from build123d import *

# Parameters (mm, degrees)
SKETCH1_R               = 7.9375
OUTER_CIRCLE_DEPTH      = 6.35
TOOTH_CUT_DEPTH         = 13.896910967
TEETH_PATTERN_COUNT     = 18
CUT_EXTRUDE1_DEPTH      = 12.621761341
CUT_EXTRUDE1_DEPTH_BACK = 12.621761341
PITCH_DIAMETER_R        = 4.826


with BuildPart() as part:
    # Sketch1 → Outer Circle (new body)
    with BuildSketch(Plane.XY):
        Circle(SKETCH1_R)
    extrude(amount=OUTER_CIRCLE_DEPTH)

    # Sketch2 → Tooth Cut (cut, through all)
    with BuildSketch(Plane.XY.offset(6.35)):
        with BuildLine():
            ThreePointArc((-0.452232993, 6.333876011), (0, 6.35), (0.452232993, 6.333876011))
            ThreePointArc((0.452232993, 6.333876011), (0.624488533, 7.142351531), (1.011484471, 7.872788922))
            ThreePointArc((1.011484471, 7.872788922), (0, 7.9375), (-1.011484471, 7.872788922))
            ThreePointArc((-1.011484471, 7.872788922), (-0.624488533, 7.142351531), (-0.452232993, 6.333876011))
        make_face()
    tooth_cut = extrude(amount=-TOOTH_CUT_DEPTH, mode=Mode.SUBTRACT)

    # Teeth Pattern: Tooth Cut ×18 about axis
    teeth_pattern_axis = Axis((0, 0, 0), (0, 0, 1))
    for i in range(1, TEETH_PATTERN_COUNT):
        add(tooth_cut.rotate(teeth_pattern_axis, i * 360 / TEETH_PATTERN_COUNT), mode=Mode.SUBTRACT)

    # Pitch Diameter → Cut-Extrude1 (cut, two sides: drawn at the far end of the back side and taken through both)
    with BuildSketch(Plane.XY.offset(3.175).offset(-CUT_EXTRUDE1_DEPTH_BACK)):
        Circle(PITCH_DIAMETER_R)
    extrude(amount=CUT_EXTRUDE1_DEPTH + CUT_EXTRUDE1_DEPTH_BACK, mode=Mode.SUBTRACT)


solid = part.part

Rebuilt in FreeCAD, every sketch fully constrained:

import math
import FreeCAD as App
import Part
import Sketcher

V = App.Vector
Q = App.Units.Quantity

doc = App.newDocument("Part")
body = doc.addObject("PartDesign::Body", "Body")

sketch1 = doc.addObject("Sketcher::SketchObject", "Sketch")
body.addObject(sketch1)
sketch1.AttachmentSupport = (doc.XY_Plane, [""])
sketch1.MapMode = "FlatFace"
sketch1.addGeometry(Part.Circle(V(0, 0, 0), V(0, 0, 1), 8), False)
sketch1.addConstraint([
    Sketcher.Constraint("Coincident", 0, 3, -1, 1),
    Sketcher.Constraint("Diameter", 0, Q("0.625 in")),
])
pad1 = doc.addObject("PartDesign::Pad", "Pad")
body.addObject(pad1)
pad1.Profile = sketch1
pad1.Length = Q("0.25 in")

sketch2 = doc.addObject("Sketcher::SketchObject", "Sketch001")
body.addObject(sketch2)
sketch2.AttachmentSupport = (doc.XY_Plane, [""])
sketch2.MapMode = "FlatFace"
sketch2.AttachmentOffset = App.Placement(V(0, 0, 0.25 * 25.4), App.Rotation())
sketch2.addGeometry([
    Part.ArcOfCircle(Part.Circle(V(0, 0, 0), V(0, 0, 1), 6.4), math.radians(85.92), math.radians(94.08)),
    Part.ArcOfCircle(Part.Circle(V(3.4, 6.1, 0), V(0, 0, 1), 3), math.radians(144), math.radians(176)),
    Part.ArcOfCircle(Part.Circle(V(0, 0, 0), V(0, 0, 1), 7.9), math.radians(82.68), math.radians(97.32)),
    Part.ArcOfCircle(Part.Circle(V(-3.4, 6.1, 0), V(0, 0, 1), 3), math.radians(4), math.radians(36)),
], False)
sketch2.addConstraint([
    Sketcher.Constraint("Coincident", 0, 1, 1, 2),
    Sketcher.Constraint("Coincident", 1, 1, 2, 1),
    Sketcher.Constraint("Coincident", 2, 2, 3, 2),
    Sketcher.Constraint("Coincident", 3, 1, 0, 2),
    Sketcher.Constraint("Coincident", 0, 3, -1, 1),
    Sketcher.Constraint("Coincident", 2, 3, -1, 1),
    Sketcher.Constraint("Equal", 1, 3),
    Sketcher.Constraint("Symmetric", 1, 3, 3, 3, -2),
    Sketcher.Constraint("Radius", 0, Q("0.25 in")),
    Sketcher.Constraint("Radius", 2, Q("0.3125 in")),
    Sketcher.Constraint("Radius", 1, 2.990646),
    Sketcher.Constraint("DistanceX", 1, 1, 1, 3, 2.423801),
    Sketcher.Constraint("DistanceY", -1, 1, 1, 3, 6.120889),
])
pocket1 = doc.addObject("PartDesign::Pocket", "Pocket")
body.addObject(pocket1)
pocket1.Profile = sketch2
pocket1.Type = "ThroughAll"
doc.recompute()

polarpattern = doc.addObject("PartDesign::PolarPattern", "PolarPattern")
body.addObject(polarpattern)
polarpattern.Originals = [pocket1]
polarpattern.Axis = (doc.Z_Axis, [""])
polarpattern.Angle = 360
polarpattern.Occurrences = 18
body.Tip = polarpattern

sketch3 = doc.addObject("Sketcher::SketchObject", "Sketch002")
body.addObject(sketch3)
sketch3.AttachmentSupport = (doc.XY_Plane, [""])
sketch3.MapMode = "FlatFace"
sketch3.AttachmentOffset = App.Placement(V(0, 0, 0.125 * 25.4), App.Rotation())
sketch3.addGeometry(Part.Circle(V(0, 0, 0), V(0, 0, 1), 4.8), False)
sketch3.addConstraint([
    Sketcher.Constraint("Coincident", 0, 3, -1, 1),
    Sketcher.Constraint("Diameter", 0, Q("0.38 in")),
])
pocket2 = doc.addObject("PartDesign::Pocket", "Pocket001")
body.addObject(pocket2)
pocket2.Profile = sketch3
pocket2.Type = "ThroughAll"
pocket2.Midplane = True

doc.recompute()
